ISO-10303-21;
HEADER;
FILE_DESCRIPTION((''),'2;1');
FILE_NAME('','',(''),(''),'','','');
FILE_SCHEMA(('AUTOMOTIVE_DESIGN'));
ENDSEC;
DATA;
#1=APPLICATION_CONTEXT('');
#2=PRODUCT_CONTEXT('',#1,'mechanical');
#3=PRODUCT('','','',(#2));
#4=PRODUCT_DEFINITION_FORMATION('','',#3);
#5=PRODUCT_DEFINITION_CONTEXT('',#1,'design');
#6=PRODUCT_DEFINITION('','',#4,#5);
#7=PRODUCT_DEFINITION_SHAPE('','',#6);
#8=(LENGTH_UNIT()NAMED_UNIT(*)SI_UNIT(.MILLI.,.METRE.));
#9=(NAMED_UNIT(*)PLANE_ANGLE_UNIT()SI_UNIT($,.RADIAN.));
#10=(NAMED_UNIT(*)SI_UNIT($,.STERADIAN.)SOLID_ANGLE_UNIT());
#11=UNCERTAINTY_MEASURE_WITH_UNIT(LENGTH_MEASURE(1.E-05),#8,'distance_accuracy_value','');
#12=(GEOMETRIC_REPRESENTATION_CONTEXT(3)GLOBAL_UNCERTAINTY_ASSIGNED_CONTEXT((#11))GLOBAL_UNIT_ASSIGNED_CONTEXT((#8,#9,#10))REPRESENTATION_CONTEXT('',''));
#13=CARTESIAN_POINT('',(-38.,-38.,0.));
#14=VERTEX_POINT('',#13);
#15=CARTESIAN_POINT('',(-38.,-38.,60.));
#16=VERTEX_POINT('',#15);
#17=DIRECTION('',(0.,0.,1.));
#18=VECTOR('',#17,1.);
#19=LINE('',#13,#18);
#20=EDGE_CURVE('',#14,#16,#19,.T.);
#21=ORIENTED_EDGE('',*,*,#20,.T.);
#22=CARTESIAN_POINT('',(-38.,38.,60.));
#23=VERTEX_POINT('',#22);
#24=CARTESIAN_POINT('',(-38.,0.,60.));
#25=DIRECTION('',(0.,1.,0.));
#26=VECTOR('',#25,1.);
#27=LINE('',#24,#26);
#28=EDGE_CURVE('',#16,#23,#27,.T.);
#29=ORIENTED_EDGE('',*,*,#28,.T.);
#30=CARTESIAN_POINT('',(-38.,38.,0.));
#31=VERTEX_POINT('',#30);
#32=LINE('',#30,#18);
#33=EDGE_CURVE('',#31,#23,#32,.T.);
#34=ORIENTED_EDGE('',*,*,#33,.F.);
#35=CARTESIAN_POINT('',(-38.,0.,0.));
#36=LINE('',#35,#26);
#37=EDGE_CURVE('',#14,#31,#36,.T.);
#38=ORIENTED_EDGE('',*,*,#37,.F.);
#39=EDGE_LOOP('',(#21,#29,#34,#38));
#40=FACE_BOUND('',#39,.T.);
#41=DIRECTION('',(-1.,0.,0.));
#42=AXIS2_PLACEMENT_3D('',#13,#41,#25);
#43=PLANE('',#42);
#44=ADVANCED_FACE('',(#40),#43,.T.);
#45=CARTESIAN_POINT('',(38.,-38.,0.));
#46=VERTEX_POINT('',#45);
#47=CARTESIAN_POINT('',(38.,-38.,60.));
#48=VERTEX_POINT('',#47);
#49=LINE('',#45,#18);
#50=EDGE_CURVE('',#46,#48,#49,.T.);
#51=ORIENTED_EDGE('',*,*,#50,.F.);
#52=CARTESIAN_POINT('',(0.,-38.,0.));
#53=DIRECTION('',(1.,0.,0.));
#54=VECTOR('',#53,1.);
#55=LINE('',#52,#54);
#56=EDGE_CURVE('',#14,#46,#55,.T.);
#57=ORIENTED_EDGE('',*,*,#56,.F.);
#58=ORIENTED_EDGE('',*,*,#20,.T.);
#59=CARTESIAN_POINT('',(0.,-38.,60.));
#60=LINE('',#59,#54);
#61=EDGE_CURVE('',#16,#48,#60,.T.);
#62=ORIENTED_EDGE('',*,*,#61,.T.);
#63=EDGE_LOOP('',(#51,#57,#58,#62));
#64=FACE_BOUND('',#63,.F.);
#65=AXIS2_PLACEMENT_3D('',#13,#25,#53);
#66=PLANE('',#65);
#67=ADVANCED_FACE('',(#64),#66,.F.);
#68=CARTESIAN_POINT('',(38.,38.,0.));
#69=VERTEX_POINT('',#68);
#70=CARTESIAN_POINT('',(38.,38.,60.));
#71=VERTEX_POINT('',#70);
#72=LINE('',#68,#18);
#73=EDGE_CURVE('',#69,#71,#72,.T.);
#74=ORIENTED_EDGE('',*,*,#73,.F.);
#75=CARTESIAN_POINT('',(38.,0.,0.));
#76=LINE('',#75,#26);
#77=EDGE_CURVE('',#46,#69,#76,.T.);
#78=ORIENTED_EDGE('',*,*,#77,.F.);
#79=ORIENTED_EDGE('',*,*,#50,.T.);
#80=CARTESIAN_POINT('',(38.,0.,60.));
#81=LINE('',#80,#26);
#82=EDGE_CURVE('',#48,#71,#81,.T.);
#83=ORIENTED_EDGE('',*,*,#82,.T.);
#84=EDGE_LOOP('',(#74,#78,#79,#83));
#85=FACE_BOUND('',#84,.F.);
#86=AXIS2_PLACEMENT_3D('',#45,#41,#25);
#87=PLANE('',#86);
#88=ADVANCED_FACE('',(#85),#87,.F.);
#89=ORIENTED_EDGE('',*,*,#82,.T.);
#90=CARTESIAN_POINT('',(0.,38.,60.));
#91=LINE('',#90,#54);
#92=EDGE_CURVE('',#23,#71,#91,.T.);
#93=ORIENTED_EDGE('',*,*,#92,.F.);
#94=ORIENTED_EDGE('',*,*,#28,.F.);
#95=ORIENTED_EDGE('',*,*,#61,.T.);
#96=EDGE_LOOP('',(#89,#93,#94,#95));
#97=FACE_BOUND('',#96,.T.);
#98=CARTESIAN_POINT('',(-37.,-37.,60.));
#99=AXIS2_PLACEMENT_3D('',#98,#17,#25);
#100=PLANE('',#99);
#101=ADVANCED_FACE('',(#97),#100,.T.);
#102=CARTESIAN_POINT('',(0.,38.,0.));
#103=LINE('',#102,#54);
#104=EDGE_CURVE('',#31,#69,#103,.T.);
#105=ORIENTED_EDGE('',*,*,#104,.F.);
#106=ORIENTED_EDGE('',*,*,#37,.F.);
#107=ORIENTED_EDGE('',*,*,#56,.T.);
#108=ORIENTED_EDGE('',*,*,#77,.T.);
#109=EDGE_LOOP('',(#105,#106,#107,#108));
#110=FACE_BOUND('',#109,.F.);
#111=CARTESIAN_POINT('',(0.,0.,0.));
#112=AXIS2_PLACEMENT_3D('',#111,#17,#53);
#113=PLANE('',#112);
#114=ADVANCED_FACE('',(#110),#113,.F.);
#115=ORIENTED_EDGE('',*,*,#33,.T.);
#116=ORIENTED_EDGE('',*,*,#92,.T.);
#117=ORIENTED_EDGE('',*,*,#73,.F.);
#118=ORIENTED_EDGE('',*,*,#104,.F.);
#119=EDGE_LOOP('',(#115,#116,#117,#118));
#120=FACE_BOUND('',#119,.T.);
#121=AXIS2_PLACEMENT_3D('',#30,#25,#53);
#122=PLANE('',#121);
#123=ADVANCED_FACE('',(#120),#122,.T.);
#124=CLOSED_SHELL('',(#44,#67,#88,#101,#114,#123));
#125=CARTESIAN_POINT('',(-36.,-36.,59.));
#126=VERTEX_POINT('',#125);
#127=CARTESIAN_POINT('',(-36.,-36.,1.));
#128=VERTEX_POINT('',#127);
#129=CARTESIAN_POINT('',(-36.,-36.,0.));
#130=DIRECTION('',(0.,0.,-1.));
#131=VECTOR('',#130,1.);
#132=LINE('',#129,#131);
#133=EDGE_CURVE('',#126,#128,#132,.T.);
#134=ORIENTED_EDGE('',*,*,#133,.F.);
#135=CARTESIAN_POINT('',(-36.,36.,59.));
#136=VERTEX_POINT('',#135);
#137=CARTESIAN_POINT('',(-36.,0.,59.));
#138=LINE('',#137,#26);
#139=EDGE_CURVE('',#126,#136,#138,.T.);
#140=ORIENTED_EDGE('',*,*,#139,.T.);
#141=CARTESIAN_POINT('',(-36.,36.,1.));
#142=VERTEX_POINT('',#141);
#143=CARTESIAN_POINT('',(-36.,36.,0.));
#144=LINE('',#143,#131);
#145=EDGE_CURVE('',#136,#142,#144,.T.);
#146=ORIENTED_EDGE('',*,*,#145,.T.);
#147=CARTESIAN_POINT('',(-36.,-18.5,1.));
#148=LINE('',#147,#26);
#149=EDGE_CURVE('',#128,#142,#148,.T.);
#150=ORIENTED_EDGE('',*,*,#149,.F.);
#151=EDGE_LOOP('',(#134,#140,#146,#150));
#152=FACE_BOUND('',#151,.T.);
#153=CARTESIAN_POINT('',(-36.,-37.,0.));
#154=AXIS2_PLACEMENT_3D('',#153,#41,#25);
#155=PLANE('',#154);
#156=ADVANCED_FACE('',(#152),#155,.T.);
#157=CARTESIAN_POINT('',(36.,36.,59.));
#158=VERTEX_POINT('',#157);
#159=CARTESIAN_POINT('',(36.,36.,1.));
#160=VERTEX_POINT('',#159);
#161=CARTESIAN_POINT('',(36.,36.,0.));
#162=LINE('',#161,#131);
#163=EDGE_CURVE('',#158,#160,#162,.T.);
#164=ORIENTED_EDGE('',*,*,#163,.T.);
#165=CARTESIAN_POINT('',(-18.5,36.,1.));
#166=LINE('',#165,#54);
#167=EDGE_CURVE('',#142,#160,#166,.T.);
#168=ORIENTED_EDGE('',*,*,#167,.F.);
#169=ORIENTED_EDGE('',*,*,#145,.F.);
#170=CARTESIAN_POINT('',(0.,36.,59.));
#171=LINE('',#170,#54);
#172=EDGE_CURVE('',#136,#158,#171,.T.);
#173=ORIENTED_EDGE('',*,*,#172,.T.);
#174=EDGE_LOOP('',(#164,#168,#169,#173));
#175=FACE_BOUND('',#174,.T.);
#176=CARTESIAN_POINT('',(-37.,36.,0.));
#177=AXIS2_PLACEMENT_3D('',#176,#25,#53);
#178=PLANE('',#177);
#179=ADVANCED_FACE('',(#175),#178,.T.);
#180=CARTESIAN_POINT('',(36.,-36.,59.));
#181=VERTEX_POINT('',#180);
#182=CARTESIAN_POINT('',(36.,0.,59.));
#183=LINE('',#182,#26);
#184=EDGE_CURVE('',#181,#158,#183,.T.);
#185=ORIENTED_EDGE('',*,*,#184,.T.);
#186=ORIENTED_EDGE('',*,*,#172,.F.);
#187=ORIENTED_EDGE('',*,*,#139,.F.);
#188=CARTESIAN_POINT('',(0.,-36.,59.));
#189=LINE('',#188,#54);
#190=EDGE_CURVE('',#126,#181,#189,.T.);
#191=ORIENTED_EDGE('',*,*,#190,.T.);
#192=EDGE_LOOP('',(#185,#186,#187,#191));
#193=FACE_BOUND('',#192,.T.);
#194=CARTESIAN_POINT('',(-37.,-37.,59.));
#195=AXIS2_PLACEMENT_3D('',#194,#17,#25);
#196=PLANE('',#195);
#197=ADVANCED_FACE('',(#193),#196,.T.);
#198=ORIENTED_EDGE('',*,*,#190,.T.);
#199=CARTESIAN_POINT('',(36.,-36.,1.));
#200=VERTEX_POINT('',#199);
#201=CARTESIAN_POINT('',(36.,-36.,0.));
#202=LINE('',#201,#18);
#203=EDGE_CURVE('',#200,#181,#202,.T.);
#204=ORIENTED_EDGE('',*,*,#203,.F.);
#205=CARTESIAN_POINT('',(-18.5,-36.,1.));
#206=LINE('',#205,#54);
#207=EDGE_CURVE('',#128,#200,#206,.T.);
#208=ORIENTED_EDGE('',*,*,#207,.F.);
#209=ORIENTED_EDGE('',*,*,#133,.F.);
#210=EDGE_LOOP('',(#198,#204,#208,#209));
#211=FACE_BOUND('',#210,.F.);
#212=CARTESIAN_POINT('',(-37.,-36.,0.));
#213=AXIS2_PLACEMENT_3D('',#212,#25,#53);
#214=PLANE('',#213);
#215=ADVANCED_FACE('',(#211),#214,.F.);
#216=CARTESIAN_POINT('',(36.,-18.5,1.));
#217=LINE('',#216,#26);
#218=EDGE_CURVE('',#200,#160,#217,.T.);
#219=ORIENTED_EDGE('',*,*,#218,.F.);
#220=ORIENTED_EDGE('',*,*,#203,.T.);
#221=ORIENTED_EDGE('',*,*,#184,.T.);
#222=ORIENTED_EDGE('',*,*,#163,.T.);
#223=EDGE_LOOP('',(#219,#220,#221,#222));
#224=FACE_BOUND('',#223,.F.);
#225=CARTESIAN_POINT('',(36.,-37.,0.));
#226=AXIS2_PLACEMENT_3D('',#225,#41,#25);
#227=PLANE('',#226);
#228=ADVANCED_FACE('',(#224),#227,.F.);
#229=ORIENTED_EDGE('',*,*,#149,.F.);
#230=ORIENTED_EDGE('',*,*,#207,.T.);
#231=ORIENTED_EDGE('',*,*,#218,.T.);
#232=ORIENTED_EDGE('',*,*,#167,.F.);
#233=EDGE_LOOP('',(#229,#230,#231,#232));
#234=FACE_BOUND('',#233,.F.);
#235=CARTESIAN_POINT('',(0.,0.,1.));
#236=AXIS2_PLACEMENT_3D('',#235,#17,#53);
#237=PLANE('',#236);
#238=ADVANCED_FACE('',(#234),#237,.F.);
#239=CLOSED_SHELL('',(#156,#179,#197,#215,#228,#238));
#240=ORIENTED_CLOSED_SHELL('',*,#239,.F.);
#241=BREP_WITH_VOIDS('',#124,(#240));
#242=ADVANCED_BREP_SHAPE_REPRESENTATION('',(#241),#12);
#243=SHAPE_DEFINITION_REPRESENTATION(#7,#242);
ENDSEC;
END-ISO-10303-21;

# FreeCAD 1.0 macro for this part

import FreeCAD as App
import Part
import Sketcher
from FreeCAD import Vector
Q = App.Units.Quantity


def faces_at(feature, points):
    """Names of the faces that lie closest to the given points."""
    faces = feature.Shape.Faces
    near = lambda p: min(range(len(faces)), key=lambda i: faces[i].distToShape(Part.Vertex(*p))[0])
    return sorted({f"Face{near(p) + 1}" for p in points})

doc = App.newDocument("Part")
body = doc.addObject("PartDesign::Body", "Body")

# Sketch on XY plane
sketch1 = body.newObject("Sketcher::SketchObject", "Sketch")
sketch1.AttachmentSupport = (doc.getObject("XY_Plane"), [""])
sketch1.MapMode = "FlatFace"
sketch1.addGeometry([
    Part.LineSegment(Vector(-37, 37, 0), Vector(-37, -37, 0)),
    Part.LineSegment(Vector(-37, -37, 0), Vector(37, -37, 0)),
    Part.LineSegment(Vector(37, -37, 0), Vector(37, 37, 0)),
    Part.LineSegment(Vector(37, 37, 0), Vector(-37, 37, 0)),
], False)
sketch1.addConstraint([
    Sketcher.Constraint("Coincident", 0, 2, 1, 1),
    Sketcher.Constraint("Coincident", 1, 2, 2, 1),
    Sketcher.Constraint("Coincident", 2, 2, 3, 1),
    Sketcher.Constraint("Coincident", 3, 2, 0, 1),
    Sketcher.Constraint("Vertical", 0),
    Sketcher.Constraint("Horizontal", 1),
    Sketcher.Constraint("Vertical", 2),
    Sketcher.Constraint("Horizontal", 3),
    Sketcher.Constraint("Symmetric", 0, 2, 2, 2, -1, 1),
    Sketcher.Constraint("Equal", 3, 0),
    Sketcher.Constraint("DistanceX", 1, 1, 1, 2, Q("74 mm")),
])
pad1 = body.newObject("PartDesign::Pad", "Pad")
pad1.Profile = sketch1
pad1.Length = 59
doc.recompute()

thickness = body.newObject("PartDesign::Thickness", "Thickness")
thickness.Base = (pad1, faces_at(pad1, [(0, 0, 59)]))
thickness.Value = 1
thickness.Reversed = True
thickness.Join = "Arc"

# Sketch on XY plane
sketch2 = body.newObject("Sketcher::SketchObject", "Sketch001")
sketch2.AttachmentSupport = (doc.getObject("XY_Plane"), [""])
sketch2.MapMode = "FlatFace"
sketch2.addGeometry([
    Part.LineSegment(Vector(-38, 38, 0), Vector(-38, -38, 0)),  # 0
    Part.LineSegment(Vector(-38, -38, 0), Vector(38, -38, 0)),  # 1
    Part.LineSegment(Vector(38, -38, 0), Vector(38, 38, 0)),  # 2
    Part.LineSegment(Vector(38, 38, 0), Vector(-38, 38, 0)),  # 3
    Part.LineSegment(Vector(37, -37, 0), Vector(-37, -37, 0)),  # 4
    Part.LineSegment(Vector(-37, -37, 0), Vector(-37, 37, 0)),  # 5
    Part.LineSegment(Vector(-37, 37, 0), Vector(37, 37, 0)),  # 6
    Part.LineSegment(Vector(37, 37, 0), Vector(37, -37, 0)),  # 7
], False)
sketch2.addConstraint([
    Sketcher.Constraint("Coincident", 0, 2, 1, 1),
    Sketcher.Constraint("Coincident", 1, 2, 2, 1),
    Sketcher.Constraint("Coincident", 2, 2, 3, 1),
    Sketcher.Constraint("Coincident", 3, 2, 0, 1),
    Sketcher.Constraint("Coincident", 4, 2, 5, 1),
    Sketcher.Constraint("Coincident", 5, 2, 6, 1),
    Sketcher.Constraint("Coincident", 6, 2, 7, 1),
    Sketcher.Constraint("Coincident", 7, 2, 4, 1),
    Sketcher.Constraint("Vertical", 0),
    Sketcher.Constraint("Horizontal", 1),
    Sketcher.Constraint("Vertical", 2),
    Sketcher.Constraint("Horizontal", 3),
    Sketcher.Constraint("Horizontal", 4),
    Sketcher.Constraint("Vertical", 5),
    Sketcher.Constraint("Horizontal", 6),
    Sketcher.Constraint("Vertical", 7),
    Sketcher.Constraint("Symmetric", 0, 2, 2, 2, -1, 1),
    Sketcher.Constraint("Symmetric", 4, 2, 6, 2, -1, 1),
    Sketcher.Constraint("Equal", 3, 0),
    Sketcher.Constraint("Equal", 6, 5),
    Sketcher.Constraint("DistanceX", 1, 1, 1, 2, Q("76 mm")),
    Sketcher.Constraint("DistanceX", 4, 2, 4, 1, Q("74 mm")),
])
pad2 = body.newObject("PartDesign::Pad", "Pad001")
pad2.Profile = sketch2
pad2.Length = 60

# Sketch on YZ plane
sketch3 = body.newObject("Sketcher::SketchObject", "Sketch002")
sketch3.AttachmentSupport = (doc.getObject("YZ_Plane"), [""])
sketch3.MapMode = "FlatFace"
sketch3.AttachmentOffset = App.Placement(Vector(0, 0, -37), App.Rotation())
sketch3.addGeometry([
    Part.LineSegment(Vector(-37, 60, 0), Vector(-37, 59, 0)),
    Part.LineSegment(Vector(-37, 59, 0), Vector(37, 59, 0)),
    Part.LineSegment(Vector(37, 59, 0), Vector(37, 60, 0)),
    Part.LineSegment(Vector(37, 60, 0), Vector(-37, 60, 0)),
], False)
sketch3.addConstraint([
    Sketcher.Constraint("Coincident", 0, 2, 1, 1),
    Sketcher.Constraint("Coincident", 1, 2, 2, 1),
    Sketcher.Constraint("Coincident", 2, 2, 3, 1),
    Sketcher.Constraint("Coincident", 3, 2, 0, 1),
    Sketcher.Constraint("Vertical", 0),
    Sketcher.Constraint("Horizontal", 1),
    Sketcher.Constraint("Vertical", 2),
    Sketcher.Constraint("Horizontal", 3),
    Sketcher.Constraint("DistanceX", 1, 1, 1, 2, Q("74 mm")),
    Sketcher.Constraint("DistanceY", 0, 2, 0, 1, Q("1 mm")),
    Sketcher.Constraint("DistanceX", 0, 2, -1, 1, Q("37 mm")),
    Sketcher.Constraint("DistanceY", -1, 1, 0, 2, Q("59 mm")),
])
pad3 = body.newObject("PartDesign::Pad", "Pad002")
pad3.Profile = sketch3
pad3.Type = "UpToLast"

doc.recompute()
